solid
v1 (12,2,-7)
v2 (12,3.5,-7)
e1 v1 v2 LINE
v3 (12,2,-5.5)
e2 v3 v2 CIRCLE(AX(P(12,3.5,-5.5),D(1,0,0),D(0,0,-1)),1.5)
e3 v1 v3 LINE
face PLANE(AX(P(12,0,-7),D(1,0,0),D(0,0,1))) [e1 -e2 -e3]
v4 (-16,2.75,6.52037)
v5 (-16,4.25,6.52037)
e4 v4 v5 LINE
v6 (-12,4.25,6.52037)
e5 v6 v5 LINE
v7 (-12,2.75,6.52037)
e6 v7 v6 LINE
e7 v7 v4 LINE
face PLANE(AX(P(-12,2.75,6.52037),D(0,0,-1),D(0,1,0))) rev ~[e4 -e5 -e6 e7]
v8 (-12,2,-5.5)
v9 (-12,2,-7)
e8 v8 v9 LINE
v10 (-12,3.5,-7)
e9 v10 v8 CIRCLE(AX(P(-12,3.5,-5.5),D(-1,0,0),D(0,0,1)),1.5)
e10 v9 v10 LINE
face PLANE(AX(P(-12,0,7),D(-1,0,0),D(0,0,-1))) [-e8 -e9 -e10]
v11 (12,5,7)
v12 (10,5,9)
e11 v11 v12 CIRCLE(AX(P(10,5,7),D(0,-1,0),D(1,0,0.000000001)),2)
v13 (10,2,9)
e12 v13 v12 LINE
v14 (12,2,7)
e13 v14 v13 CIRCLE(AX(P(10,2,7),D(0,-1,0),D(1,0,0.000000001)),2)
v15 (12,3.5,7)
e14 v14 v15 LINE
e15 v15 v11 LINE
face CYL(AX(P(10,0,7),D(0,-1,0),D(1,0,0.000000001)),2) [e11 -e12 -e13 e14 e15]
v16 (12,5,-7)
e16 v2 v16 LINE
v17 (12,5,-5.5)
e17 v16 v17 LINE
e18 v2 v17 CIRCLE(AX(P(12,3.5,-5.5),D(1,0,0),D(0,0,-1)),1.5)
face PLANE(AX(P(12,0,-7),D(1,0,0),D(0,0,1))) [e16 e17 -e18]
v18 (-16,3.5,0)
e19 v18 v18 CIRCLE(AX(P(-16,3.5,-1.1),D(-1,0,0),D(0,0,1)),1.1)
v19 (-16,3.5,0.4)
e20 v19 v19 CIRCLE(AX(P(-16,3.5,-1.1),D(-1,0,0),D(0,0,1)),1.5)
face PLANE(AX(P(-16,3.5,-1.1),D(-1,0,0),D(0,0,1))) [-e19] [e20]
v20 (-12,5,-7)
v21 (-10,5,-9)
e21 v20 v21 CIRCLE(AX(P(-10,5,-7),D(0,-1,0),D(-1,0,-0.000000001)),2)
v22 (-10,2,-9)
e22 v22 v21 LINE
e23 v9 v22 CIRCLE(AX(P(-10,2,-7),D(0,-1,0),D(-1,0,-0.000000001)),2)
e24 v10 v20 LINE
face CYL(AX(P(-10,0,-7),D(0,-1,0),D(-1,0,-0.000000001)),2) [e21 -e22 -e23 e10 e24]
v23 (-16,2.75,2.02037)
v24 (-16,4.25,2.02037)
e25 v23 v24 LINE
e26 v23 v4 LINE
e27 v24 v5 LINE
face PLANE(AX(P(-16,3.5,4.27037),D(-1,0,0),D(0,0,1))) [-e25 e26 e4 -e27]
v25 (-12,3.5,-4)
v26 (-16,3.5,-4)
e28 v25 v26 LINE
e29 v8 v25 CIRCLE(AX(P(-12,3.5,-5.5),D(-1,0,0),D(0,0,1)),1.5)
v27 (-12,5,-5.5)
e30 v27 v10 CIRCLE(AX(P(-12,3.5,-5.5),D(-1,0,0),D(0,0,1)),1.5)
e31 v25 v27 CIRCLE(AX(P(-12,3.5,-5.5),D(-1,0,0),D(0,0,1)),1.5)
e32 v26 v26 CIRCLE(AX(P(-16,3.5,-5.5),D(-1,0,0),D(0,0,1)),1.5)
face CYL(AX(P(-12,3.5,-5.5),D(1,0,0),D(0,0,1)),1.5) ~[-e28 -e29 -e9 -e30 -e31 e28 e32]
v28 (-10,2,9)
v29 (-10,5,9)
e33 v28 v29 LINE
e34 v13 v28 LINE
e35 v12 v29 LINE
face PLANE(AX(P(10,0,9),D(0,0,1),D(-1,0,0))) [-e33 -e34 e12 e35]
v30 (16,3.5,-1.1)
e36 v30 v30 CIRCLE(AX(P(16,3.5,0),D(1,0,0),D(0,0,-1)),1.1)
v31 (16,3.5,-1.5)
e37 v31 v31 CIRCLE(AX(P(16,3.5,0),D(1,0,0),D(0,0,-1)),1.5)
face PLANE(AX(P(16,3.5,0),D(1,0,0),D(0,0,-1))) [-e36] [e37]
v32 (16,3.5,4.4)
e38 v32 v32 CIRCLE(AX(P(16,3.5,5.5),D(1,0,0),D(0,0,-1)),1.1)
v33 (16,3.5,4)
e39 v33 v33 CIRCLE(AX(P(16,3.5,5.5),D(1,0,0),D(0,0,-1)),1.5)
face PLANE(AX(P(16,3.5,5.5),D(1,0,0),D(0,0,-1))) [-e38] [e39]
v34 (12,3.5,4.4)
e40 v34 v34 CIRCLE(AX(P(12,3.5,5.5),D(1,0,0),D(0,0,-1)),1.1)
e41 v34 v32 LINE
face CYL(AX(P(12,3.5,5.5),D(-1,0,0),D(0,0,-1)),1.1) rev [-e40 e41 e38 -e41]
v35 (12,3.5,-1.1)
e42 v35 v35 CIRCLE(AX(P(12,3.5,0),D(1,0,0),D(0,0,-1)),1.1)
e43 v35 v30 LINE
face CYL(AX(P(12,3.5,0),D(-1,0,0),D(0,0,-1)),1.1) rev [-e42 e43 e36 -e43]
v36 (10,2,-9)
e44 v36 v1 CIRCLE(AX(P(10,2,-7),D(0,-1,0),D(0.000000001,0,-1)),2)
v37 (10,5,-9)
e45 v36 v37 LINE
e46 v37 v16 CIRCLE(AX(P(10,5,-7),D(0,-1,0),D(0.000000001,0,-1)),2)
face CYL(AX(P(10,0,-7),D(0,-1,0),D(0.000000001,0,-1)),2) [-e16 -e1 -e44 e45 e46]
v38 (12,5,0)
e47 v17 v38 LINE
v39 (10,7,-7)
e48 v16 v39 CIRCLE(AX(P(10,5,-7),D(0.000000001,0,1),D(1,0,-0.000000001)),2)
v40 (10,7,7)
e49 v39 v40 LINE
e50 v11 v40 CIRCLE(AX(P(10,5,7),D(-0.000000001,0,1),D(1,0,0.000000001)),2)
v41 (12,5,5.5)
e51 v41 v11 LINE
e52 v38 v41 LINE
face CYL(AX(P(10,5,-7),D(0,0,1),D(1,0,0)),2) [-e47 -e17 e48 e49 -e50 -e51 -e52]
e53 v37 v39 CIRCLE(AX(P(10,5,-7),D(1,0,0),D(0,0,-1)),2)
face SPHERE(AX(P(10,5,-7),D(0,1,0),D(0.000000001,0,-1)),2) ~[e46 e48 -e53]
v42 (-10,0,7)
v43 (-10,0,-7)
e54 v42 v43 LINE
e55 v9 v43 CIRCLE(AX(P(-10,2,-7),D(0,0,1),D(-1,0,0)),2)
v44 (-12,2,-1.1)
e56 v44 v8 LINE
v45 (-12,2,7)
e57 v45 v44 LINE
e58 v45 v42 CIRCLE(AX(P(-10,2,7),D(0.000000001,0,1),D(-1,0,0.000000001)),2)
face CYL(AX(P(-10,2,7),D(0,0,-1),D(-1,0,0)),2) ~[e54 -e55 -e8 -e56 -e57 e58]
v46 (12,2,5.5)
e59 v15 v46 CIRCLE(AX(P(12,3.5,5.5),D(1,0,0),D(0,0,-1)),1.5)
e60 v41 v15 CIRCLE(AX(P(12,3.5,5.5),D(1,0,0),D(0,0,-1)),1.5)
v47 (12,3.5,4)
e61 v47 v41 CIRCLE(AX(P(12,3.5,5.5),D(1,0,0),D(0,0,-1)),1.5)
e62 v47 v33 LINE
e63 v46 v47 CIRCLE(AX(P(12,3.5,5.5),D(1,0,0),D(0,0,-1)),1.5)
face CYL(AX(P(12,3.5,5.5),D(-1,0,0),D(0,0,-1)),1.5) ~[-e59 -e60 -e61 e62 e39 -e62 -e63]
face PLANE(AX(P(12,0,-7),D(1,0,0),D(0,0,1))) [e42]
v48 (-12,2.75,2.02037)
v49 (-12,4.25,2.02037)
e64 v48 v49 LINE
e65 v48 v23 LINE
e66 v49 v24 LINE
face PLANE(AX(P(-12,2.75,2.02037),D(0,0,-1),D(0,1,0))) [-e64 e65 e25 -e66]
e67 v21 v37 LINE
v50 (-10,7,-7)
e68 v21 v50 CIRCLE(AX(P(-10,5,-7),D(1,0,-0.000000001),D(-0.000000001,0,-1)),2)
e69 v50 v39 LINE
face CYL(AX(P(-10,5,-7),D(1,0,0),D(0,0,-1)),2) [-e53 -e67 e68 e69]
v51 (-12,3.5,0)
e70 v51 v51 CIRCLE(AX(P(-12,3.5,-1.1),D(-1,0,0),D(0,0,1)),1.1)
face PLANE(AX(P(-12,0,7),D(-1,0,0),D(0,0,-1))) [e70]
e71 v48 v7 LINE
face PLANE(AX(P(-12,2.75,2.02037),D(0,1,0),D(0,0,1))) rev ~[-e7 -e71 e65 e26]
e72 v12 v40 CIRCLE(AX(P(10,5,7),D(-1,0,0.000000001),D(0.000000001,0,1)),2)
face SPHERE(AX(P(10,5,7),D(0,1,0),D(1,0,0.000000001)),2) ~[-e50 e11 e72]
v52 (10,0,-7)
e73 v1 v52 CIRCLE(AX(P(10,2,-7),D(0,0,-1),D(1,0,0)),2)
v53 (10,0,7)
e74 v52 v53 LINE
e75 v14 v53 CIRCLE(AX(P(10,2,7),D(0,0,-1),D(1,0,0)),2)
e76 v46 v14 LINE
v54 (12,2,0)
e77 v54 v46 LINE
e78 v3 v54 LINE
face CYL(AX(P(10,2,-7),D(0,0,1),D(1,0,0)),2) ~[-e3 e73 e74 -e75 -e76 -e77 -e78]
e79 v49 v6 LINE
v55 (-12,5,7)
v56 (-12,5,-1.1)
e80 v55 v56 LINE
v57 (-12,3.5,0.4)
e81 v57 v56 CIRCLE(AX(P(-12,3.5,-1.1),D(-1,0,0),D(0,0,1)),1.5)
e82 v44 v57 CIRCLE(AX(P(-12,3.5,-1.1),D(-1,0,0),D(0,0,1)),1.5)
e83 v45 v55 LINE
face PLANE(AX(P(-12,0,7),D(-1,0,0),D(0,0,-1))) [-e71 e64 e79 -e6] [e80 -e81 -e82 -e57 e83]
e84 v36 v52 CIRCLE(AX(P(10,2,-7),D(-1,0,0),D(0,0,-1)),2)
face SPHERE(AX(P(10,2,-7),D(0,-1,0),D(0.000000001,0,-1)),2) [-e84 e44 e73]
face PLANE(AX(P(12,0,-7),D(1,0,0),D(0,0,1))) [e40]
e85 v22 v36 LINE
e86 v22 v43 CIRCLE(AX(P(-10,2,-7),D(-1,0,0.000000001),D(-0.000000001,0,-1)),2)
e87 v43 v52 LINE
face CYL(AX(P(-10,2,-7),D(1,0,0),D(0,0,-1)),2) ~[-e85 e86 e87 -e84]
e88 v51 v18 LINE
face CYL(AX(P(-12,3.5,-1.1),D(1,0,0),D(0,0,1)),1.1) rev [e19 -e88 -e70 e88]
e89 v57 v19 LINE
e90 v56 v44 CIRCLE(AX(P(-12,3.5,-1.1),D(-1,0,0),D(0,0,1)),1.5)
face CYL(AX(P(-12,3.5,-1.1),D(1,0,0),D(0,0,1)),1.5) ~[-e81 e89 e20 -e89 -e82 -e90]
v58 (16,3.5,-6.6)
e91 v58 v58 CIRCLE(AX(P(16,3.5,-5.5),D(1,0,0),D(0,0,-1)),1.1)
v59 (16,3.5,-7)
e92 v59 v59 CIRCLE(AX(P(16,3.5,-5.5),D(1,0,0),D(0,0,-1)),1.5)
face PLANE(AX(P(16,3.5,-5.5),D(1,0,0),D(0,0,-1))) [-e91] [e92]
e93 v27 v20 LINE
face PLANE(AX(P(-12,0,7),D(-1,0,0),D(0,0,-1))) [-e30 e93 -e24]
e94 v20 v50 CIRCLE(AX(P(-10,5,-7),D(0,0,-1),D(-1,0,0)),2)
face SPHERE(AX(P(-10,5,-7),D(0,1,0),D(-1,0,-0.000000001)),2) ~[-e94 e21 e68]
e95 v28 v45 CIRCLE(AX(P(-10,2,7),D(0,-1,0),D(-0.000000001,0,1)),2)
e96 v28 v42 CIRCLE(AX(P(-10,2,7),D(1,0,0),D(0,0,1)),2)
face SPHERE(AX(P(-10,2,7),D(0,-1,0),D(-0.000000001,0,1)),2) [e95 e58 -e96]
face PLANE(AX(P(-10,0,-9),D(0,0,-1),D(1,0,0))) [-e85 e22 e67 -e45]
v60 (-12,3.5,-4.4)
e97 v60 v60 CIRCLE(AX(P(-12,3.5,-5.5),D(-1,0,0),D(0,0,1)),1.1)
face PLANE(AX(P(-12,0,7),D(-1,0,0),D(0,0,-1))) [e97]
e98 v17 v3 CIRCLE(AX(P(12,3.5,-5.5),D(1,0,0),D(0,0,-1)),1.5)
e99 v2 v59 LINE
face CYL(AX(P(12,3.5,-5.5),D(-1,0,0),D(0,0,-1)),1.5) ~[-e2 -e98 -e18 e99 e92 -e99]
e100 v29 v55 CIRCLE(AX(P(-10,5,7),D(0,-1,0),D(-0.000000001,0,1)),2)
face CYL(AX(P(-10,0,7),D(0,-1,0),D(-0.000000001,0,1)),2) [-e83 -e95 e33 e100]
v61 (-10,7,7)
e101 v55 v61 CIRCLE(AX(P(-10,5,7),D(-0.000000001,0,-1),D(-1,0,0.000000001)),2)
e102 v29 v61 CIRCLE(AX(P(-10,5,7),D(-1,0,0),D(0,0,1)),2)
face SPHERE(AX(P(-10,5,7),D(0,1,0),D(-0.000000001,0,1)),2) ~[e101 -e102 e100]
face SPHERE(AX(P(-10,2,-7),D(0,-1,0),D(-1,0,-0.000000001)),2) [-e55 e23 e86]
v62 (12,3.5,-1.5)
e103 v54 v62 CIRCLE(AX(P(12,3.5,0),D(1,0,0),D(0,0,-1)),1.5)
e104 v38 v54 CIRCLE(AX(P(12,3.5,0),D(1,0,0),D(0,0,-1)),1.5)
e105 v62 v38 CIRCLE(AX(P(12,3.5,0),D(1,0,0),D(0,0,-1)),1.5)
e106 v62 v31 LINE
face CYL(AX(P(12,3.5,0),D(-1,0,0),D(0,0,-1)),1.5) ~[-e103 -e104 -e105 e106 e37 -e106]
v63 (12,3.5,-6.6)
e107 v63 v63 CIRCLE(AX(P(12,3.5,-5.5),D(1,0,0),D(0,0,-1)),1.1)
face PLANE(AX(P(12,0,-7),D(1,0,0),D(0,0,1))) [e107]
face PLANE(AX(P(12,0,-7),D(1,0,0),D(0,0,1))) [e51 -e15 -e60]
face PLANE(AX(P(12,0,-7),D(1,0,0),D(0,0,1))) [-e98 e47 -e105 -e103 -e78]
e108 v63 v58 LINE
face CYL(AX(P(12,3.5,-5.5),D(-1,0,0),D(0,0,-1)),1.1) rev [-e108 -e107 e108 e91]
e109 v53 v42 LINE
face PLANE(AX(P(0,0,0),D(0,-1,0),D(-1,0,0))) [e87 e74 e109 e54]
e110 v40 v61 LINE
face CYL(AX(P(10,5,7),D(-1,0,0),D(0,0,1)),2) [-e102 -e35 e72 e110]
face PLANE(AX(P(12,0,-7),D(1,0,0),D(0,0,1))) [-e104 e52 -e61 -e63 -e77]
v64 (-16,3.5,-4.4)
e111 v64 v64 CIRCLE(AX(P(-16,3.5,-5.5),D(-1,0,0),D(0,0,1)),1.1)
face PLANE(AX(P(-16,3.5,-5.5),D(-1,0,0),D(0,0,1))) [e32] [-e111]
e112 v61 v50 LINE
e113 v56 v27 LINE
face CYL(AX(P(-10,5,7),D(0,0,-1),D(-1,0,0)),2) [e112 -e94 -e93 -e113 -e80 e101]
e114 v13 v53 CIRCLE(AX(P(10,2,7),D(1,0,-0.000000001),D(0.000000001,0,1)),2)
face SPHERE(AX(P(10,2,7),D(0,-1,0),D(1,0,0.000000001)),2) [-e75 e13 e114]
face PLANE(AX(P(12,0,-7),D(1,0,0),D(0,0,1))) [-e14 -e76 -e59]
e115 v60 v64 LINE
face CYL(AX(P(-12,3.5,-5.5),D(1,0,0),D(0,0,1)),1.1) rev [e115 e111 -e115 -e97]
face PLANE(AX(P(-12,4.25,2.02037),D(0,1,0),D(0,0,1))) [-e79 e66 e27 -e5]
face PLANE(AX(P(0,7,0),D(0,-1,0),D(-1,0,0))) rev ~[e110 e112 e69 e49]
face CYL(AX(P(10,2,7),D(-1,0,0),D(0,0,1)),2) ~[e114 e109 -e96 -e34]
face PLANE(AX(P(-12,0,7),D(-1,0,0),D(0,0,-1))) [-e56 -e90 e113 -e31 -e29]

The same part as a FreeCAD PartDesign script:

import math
import FreeCAD as App
import Part
import Sketcher
from FreeCAD import Vector
Q = App.Units.Quantity


def edges_at(feature, points):
    """Names of the edges that pass closest to the given points."""
    edges = feature.Shape.Edges
    near = lambda p: min(range(len(edges)), key=lambda i: edges[i].distToShape(Part.Vertex(*p))[0])
    return sorted({f"Edge{near(p) + 1}" for p in points})


def add_polygon(sketch, points):
    """Adds a closed chain of lines whose ends are joined by coincident constraints."""
    first, n = sketch.GeometryCount, len(points)
    for a, b in zip(points, points[1:] + points[:1]):
        sketch.addGeometry(Part.LineSegment(App.Vector(*a, 0), App.Vector(*b, 0)), False)
    for i in range(n):
        sketch.addConstraint(Sketcher.Constraint("Coincident", first + i, 2, first + (i + 1) % n, 1))

doc = App.newDocument("Part")
body = doc.addObject("PartDesign::Body", "Body")

# Sketch on XZ plane
sketch1 = doc.addObject("Sketcher::SketchObject", "Sketch")
body.addObject(sketch1)
sketch1.AttachmentSupport = (doc.XZ_Plane, [""])
sketch1.MapMode = "FlatFace"
sketch1.addGeometry([
    Part.LineSegment(Vector(10, -9, 0), Vector(-10, -9, 0)),  # 0
    Part.ArcOfCircle(Part.Circle(Vector(-10, -7, 0), Vector(0, 0, 1), 2), math.radians(-180), math.radians(-90)),  # 1
    Part.LineSegment(Vector(-12, -7, 0), Vector(-12, 7, 0)),  # 2
    Part.ArcOfCircle(Part.Circle(Vector(-10, 7, 0), Vector(0, 0, 1), 2), math.radians(90), math.radians(180)),  # 3
    Part.LineSegment(Vector(-10, 9, 0), Vector(10, 9, 0)),  # 4
    Part.ArcOfCircle(Part.Circle(Vector(10, 7, 0), Vector(0, 0, 1), 2), math.radians(0), math.radians(90)),  # 5
    Part.LineSegment(Vector(12, 7, 0), Vector(12, -7, 0)),  # 6
    Part.ArcOfCircle(Part.Circle(Vector(10, -7, 0), Vector(0, 0, 1), 2), math.radians(-90), math.radians(0)),  # 7
], False)
sketch1.addConstraint([
    Sketcher.Constraint("Tangent", 0, 2, 1, 2),
    Sketcher.Constraint("Tangent", 1, 1, 2, 1),
    Sketcher.Constraint("Tangent", 2, 2, 3, 2),
    Sketcher.Constraint("Tangent", 3, 1, 4, 1),
    Sketcher.Constraint("Tangent", 4, 2, 5, 2),
    Sketcher.Constraint("Tangent", 5, 1, 6, 1),
    Sketcher.Constraint("Tangent", 6, 2, 7, 2),
    Sketcher.Constraint("Tangent", 7, 1, 0, 1),
    Sketcher.Constraint("Horizontal", 0),
    Sketcher.Constraint("Vertical", 2),
    Sketcher.Constraint("Horizontal", 4),
    Sketcher.Constraint("Vertical", 6),
    Sketcher.Constraint("Equal", 1, 3),
    Sketcher.Constraint("Equal", 3, 5),
    Sketcher.Constraint("Equal", 5, 7),
    Sketcher.Constraint("Symmetric", 1, 3, 5, 3, -1, 1),
    Sketcher.Constraint("Radius", 1, Q("2 mm")),
    Sketcher.Constraint("DistanceX", 0, 2, 0, 1, Q("20 mm")),
    Sketcher.Constraint("DistanceY", 2, 1, 2, 2, Q("14 mm")),
])
pad1 = doc.addObject("PartDesign::Pad", "Pad")
body.addObject(pad1)
pad1.Profile = sketch1
pad1.Length = 7
pad1.Reversed = True
doc.recompute()

fillet = doc.addObject("PartDesign::Fillet", "Fillet")
body.addObject(fillet)
fillet.Base = (pad1, edges_at(pad1, [
    (12, 0, 0),
    (11.414, 0, 8.414),
    (0, 0, 9),
    (-11.414, 0, 8.414),
    (11.414, 7, 8.414),
    (12, 7, 0),
    (11.414, 7, -8.414),
    (0, 7, -9),
    (-11.414, 7, -8.414),
    (-12, 7, 0),
    (-11.414, 7, 8.414),
    (-12, 0, 0),
    (0, 7, 9),
    (-11.414, 0, -8.414),
    (0, 0, -9),
    (11.414, 0, -8.414),
]))
fillet.Radius = 2

# Sketch on YZ plane
sketch2 = doc.addObject("Sketcher::SketchObject", "Sketch001")
body.addObject(sketch2)
sketch2.AttachmentSupport = (doc.YZ_Plane, [""])
sketch2.MapMode = "FlatFace"
sketch2.AttachmentOffset = App.Placement(Vector(0, 0, 12), App.Rotation())
sketch2.addGeometry([
    Part.Circle(Vector(3.5, 0, 0), Vector(0, 0, 1), 1.5),  # 0
    Part.Circle(Vector(3.5, 0, 0), Vector(0, 0, 1), 1.1),  # 1
    Part.Circle(Vector(3.5, 5.5, 0), Vector(0, 0, 1), 1.5),  # 2
    Part.Circle(Vector(3.5, 5.5, 0), Vector(0, 0, 1), 1.1),  # 3
    Part.Circle(Vector(3.5, -5.5, 0), Vector(0, 0, 1), 1.5),  # 4
    Part.Circle(Vector(3.5, -5.5, 0), Vector(0, 0, 1), 1.1),  # 5
], False)
sketch2.addConstraint([
    Sketcher.Constraint("Coincident", 1, 3, 0, 3),
    Sketcher.Constraint("Coincident", 3, 3, 2, 3),
    Sketcher.Constraint("Coincident", 5, 3, 4, 3),
    Sketcher.Constraint("Equal", 0, 2),
    Sketcher.Constraint("Equal", 1, 3),
    Sketcher.Constraint("Equal", 2, 4),
    Sketcher.Constraint("Equal", 3, 5),
    Sketcher.Constraint("Symmetric", 2, 3, 4, 3, -1),
    Sketcher.Constraint("PointOnObject", 0, 3, -1),
    Sketcher.Constraint("Vertical", 1, 3, 2, 3),
    Sketcher.Constraint("Diameter", 0, Q("3 mm")),
    Sketcher.Constraint("Diameter", 1, Q("2.2 mm")),
    Sketcher.Constraint("DistanceY", 4, 3, 2, 3, Q("11 mm")),
    Sketcher.Constraint("DistanceX", -1, 1, 0, 3, Q("3.5 mm")),
])
pad2 = doc.addObject("PartDesign::Pad", "Pad001")
body.addObject(pad2)
pad2.Profile = sketch2
pad2.Length = 4

# Sketch on YZ plane
sketch3 = doc.addObject("Sketcher::SketchObject", "Sketch002")
body.addObject(sketch3)
sketch3.AttachmentSupport = (doc.YZ_Plane, [""])
sketch3.MapMode = "FlatFace"
sketch3.AttachmentOffset = App.Placement(Vector(0, 0, -12), App.Rotation())
sketch3.addGeometry(Part.Circle(Vector(3.5, -5.5, 0), Vector(0, 0, 1), 1.5), False)  # 0
sketch3.addGeometry(Part.Circle(Vector(3.5, -5.5, 0), Vector(0, 0, 1), 1.1), False)  # 1
sketch3.addGeometry(Part.Circle(Vector(3.5, -1.1, 0), Vector(0, 0, 1), 1.5), False)  # 2
sketch3.addGeometry(Part.Circle(Vector(3.5, -1.1, 0), Vector(0, 0, 1), 1.1), False)  # 3
add_polygon(sketch3, [(4.2, 2), (2.8, 2), (2.8, 6.5), (4.2, 6.5)])  # lines 4-7
sketch3.addConstraint([
    Sketcher.Constraint("Horizontal", 4),
    Sketcher.Constraint("Vertical", 5),
    Sketcher.Constraint("Horizontal", 6),
    Sketcher.Constraint("Vertical", 7),
    Sketcher.Constraint("Coincident", 1, 3, 0, 3),
    Sketcher.Constraint("Coincident", 3, 3, 2, 3),
    Sketcher.Constraint("Equal", 0, 2),
    Sketcher.Constraint("Equal", 1, 3),
    Sketcher.Constraint("Vertical", 1, 3, 2, 3),
    Sketcher.Constraint("Diameter", 0, Q("3 mm")),
    Sketcher.Constraint("Diameter", 1, Q("2.2 mm")),
    Sketcher.Constraint("DistanceX", 4, 2, 4, 1, Q("1.5 mm")),
    Sketcher.Constraint("DistanceY", 5, 1, 5, 2, Q("4.5 mm")),
    Sketcher.Constraint("DistanceX", -1, 1, 0, 3, Q("3.5 mm")),
    Sketcher.Constraint("DistanceY", 0, 3, -1, 1, Q("5.5 mm")),
    Sketcher.Constraint("DistanceY", 2, 3, -1, 1, Q("1.1 mm")),
    Sketcher.Constraint("DistanceX", -1, 1, 4, 2, Q("2.75 mm")),
    Sketcher.Constraint("DistanceY", -1, 1, 4, 2, Q("2.02037 mm")),
])
pad3 = doc.addObject("PartDesign::Pad", "Pad002")
body.addObject(pad3)
pad3.Profile = sketch3
pad3.Length = 4
pad3.Reversed = True

doc.recompute()
